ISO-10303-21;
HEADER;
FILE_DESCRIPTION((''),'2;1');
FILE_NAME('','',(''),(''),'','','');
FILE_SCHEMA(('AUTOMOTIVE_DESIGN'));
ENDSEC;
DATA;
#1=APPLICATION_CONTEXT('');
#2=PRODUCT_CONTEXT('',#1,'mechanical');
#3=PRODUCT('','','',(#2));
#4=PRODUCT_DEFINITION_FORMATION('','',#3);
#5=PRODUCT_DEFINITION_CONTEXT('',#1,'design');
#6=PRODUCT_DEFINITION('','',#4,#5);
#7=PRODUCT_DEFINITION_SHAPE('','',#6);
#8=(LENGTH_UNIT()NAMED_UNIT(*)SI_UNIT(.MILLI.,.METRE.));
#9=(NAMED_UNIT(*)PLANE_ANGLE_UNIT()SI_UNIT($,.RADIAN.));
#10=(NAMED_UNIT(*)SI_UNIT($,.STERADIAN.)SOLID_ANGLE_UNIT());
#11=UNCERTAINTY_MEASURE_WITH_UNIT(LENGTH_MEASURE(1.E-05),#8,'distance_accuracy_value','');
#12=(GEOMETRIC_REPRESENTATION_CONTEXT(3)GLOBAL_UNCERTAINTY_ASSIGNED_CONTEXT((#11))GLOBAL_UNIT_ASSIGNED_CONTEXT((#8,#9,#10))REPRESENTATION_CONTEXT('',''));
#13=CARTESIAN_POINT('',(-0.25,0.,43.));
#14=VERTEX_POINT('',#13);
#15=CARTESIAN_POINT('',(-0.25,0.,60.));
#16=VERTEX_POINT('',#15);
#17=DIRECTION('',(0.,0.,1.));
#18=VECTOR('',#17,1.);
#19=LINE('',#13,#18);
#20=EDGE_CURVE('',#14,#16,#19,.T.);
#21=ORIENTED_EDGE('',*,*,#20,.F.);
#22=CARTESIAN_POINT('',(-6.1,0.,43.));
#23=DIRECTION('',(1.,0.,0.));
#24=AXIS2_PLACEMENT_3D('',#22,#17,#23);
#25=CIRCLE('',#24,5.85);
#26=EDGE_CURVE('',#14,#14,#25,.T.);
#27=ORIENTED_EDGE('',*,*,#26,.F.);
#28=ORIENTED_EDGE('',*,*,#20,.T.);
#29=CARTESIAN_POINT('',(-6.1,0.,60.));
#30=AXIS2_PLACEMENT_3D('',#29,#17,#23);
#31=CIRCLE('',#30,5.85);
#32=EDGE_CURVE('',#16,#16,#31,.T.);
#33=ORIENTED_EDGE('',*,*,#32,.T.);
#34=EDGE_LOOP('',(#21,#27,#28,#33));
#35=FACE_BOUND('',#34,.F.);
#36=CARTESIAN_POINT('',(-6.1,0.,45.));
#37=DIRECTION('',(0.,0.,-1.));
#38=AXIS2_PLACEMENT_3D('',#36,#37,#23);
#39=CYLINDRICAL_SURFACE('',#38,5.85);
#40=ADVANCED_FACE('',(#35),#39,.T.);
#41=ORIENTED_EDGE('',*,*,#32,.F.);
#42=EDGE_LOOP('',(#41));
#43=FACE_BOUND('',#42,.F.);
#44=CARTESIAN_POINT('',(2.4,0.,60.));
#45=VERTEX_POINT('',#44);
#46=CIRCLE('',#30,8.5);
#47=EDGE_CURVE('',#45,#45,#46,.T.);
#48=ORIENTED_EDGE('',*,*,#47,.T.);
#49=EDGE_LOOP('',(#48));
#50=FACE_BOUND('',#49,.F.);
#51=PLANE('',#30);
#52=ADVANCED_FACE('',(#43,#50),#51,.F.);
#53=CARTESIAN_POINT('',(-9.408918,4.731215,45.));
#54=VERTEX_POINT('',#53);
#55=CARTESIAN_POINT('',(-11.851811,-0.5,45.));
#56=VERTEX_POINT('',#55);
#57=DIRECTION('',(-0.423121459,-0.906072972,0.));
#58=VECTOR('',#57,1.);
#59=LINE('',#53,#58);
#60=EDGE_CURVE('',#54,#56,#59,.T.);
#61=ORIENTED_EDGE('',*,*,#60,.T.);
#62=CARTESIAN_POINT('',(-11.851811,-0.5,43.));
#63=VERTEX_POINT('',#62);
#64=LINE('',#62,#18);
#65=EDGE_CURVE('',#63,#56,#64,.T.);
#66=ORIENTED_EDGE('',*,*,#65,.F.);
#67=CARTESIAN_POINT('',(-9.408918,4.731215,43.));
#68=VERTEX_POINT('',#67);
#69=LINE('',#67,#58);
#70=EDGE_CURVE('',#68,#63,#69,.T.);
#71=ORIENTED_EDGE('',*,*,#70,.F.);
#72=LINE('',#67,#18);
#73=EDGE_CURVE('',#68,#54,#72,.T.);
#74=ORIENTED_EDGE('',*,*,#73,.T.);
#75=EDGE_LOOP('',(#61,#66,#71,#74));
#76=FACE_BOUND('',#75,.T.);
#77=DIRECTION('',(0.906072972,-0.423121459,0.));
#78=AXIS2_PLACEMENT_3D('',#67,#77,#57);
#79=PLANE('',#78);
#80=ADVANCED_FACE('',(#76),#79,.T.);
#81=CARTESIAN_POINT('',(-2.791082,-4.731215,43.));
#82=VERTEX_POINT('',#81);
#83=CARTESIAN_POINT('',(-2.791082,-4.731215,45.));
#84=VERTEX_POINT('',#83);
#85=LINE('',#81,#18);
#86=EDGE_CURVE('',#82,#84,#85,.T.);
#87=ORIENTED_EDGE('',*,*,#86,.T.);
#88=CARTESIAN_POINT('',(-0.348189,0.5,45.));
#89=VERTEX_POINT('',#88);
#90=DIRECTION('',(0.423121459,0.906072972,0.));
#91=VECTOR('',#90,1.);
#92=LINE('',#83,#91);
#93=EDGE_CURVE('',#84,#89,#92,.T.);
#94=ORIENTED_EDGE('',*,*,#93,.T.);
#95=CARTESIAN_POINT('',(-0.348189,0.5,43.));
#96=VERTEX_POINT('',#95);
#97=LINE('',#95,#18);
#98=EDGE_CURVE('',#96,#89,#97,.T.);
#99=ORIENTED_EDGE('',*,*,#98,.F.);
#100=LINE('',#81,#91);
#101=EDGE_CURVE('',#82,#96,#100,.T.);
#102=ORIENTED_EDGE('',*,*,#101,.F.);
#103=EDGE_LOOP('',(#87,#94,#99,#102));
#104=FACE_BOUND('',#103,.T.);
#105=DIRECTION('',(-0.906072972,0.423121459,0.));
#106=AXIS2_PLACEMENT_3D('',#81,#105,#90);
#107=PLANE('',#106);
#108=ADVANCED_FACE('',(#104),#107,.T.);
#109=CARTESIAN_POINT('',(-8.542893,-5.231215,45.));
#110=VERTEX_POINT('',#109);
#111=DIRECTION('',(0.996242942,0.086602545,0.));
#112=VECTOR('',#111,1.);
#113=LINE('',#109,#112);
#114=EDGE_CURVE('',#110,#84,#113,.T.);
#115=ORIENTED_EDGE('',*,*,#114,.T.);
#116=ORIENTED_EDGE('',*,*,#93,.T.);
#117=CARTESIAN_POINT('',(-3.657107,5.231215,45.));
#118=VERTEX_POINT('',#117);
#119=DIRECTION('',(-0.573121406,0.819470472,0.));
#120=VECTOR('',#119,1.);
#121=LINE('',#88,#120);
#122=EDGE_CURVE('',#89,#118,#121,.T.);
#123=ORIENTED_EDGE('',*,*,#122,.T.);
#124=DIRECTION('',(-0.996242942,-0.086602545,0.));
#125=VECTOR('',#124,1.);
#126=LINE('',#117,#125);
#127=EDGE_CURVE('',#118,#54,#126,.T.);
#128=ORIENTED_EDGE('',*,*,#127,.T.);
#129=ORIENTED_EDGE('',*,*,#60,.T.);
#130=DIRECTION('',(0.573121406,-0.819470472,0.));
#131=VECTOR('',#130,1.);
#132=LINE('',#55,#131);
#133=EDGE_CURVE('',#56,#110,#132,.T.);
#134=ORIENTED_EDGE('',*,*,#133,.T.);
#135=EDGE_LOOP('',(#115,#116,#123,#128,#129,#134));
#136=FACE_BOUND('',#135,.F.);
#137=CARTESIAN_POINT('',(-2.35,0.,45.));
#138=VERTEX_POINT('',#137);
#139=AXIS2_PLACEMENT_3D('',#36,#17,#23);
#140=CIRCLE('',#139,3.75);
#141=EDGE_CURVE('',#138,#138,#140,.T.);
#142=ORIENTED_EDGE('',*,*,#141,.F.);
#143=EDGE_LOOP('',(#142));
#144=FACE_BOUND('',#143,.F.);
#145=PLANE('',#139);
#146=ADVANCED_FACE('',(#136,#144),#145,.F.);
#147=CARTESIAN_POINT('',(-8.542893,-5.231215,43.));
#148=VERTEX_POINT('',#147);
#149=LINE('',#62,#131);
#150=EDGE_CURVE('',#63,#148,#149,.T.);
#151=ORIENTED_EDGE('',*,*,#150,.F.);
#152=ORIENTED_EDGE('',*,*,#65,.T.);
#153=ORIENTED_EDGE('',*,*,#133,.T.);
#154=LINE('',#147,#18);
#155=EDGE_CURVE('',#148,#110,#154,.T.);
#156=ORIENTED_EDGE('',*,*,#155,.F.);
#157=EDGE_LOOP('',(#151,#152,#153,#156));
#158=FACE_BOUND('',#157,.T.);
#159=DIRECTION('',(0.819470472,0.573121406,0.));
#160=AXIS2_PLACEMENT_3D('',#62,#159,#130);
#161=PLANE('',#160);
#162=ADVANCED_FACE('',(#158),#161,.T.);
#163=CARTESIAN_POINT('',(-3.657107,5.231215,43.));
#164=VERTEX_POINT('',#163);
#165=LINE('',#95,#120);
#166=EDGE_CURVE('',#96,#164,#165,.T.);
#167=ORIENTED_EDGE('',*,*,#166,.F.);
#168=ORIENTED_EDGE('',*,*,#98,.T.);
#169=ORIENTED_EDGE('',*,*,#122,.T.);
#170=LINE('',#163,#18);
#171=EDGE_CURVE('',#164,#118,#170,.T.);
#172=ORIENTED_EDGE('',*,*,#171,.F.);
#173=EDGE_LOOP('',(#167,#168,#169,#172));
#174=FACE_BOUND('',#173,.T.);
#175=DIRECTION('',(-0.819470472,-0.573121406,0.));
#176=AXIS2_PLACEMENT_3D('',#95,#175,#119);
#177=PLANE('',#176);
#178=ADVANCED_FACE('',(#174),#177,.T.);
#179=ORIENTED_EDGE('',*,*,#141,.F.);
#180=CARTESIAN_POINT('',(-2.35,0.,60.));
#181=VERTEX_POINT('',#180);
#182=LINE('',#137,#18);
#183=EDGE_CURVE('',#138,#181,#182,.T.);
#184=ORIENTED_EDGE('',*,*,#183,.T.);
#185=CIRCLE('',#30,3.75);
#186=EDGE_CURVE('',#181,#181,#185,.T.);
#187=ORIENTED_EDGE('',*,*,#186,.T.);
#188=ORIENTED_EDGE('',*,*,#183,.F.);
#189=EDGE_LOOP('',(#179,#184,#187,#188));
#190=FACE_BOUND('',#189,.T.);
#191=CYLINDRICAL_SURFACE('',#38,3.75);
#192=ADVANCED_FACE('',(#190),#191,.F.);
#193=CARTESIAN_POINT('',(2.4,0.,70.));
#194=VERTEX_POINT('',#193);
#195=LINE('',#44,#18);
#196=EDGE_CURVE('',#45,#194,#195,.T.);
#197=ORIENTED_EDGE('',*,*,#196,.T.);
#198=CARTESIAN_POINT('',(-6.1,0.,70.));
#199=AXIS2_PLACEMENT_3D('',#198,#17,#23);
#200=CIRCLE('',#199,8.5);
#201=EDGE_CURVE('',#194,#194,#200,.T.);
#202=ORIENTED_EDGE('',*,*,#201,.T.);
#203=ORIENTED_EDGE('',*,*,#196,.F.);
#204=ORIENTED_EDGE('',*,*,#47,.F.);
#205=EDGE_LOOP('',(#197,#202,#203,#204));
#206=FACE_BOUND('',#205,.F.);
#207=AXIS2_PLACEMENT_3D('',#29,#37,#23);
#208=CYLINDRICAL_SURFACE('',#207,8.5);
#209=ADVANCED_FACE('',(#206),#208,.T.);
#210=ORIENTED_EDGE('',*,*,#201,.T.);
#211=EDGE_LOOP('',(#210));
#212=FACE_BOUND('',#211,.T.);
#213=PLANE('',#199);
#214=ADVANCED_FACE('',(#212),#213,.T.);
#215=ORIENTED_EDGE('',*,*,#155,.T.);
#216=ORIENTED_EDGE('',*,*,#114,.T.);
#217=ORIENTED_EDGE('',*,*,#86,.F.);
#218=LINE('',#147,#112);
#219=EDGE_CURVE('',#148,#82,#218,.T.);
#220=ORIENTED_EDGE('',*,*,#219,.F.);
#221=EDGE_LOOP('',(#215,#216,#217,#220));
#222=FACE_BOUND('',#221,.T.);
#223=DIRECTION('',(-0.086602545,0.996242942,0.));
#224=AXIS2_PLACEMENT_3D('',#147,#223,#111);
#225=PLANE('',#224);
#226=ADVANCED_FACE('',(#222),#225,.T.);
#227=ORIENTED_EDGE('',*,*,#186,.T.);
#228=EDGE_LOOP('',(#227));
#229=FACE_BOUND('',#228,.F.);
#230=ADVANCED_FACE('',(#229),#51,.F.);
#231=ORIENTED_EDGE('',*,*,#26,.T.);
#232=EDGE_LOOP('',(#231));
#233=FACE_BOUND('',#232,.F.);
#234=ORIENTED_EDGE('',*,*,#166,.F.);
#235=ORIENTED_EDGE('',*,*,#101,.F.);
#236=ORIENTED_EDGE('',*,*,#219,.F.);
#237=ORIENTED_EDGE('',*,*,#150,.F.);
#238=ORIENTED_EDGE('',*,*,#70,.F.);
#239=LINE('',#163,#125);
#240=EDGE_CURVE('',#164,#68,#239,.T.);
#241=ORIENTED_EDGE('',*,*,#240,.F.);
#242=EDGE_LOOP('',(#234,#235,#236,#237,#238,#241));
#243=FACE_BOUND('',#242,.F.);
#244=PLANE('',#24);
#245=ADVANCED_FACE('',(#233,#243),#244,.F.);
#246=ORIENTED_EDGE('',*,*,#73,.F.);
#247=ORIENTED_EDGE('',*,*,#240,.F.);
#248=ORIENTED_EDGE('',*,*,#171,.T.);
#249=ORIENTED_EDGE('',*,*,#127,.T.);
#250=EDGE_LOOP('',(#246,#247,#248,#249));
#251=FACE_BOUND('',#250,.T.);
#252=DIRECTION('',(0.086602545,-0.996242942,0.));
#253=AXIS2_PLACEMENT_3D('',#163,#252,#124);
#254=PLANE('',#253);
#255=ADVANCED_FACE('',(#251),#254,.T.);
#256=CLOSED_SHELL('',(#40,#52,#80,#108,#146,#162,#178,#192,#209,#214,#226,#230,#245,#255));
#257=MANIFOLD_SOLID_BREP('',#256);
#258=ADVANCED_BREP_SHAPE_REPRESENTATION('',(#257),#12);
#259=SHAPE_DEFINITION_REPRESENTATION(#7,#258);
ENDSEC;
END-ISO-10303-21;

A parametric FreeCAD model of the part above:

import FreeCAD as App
import Part
import Sketcher

V = App.Vector
Q = App.Units.Quantity

doc = App.newDocument("Part")
body = doc.addObject("PartDesign::Body", "Body")

# Sketch on XY plane
sketch1 = body.newObject("Sketcher::SketchObject", "Sketch")
sketch1.AttachmentSupport = (doc.getObject("XY_Plane"), [""])
sketch1.MapMode = "FlatFace"
sketch1.addGeometry([
    Part.Circle(V(-1.1, 0.5, 0), V(0, 0, 1), 5.85),  # 0
    Part.LineSegment(V(-6.851811, 0, 0), V(-4.408918, 5.231215, 0)),  # 1
    Part.LineSegment(V(-4.408918, 5.231215, 0), V(1.342893, 5.731215, 0)),  # 2
    Part.LineSegment(V(1.342893, 5.731215, 0), V(4.651811, 1, 0)),  # 3
    Part.LineSegment(V(4.651811, 1, 0), V(2.208918, -4.231215, 0)),  # 4
    Part.LineSegment(V(2.208918, -4.231215, 0), V(-3.542893, -4.731215, 0)),  # 5
    Part.LineSegment(V(-3.542893, -4.731215, 0), V(-6.851811, 0, 0)),  # 6
], False)
sketch1.addConstraint([
    Sketcher.Constraint("Coincident", 1, 2, 2, 1),
    Sketcher.Constraint("Coincident", 2, 2, 3, 1),
    Sketcher.Constraint("Coincident", 3, 2, 4, 1),
    Sketcher.Constraint("Coincident", 4, 2, 5, 1),
    Sketcher.Constraint("Coincident", 5, 2, 6, 1),
    Sketcher.Constraint("Coincident", 6, 2, 1, 1),
    Sketcher.Constraint("PointOnObject", 6, 2, -1),
    Sketcher.Constraint("Parallel", 1, 4),
    Sketcher.Constraint("Parallel", 2, 5),
    Sketcher.Constraint("Parallel", 3, 6),
    Sketcher.Constraint("Equal", 1, 2),
    Sketcher.Constraint("Equal", 2, 3),
    Sketcher.Constraint("Equal", 3, 4),
    Sketcher.Constraint("Diameter", 0, Q("11.7 mm")),
    Sketcher.Constraint("DistanceY", -1, 1, 3, 2, Q("1 mm")),
    Sketcher.Constraint("DistanceX", 0, 3, -1, 1, Q("1.1 mm")),
    Sketcher.Constraint("DistanceY", -1, 1, 0, 3, Q("0.5 mm")),
    Sketcher.Constraint("DistanceY", 1, 2, 2, 2, Q("0.5 mm")),
    Sketcher.Constraint("DistanceX", -1, 1, 3, 2, Q("4.651811 mm")),
    Sketcher.Constraint("DistanceX", -1, 1, 4, 2, Q("2.208918 mm")),
    Sketcher.Constraint("DistanceX", 6, 2, -1, 1, Q("6.851811 mm")),
])
pad1 = body.newObject("PartDesign::Pad", "Pad")
pad1.Profile = sketch1
pad1.Length = 2

# Sketch on XY plane
sketch2 = body.newObject("Sketcher::SketchObject", "Sketch001")
sketch2.AttachmentSupport = (doc.getObject("XY_Plane"), [""])
sketch2.MapMode = "FlatFace"
sketch2.AttachmentOffset = App.Placement(V(0, 0, 2), App.Rotation())
sketch2.addGeometry([
    Part.Circle(V(-1.1, 0.5, 0), V(0, 0, 1), 5.85),
    Part.Circle(V(-1.1, 0.5, 0), V(0, 0, 1), 3.75),
], False)
sketch2.addConstraint([
    Sketcher.Constraint("Coincident", 1, 3, 0, 3),
    Sketcher.Constraint("Diameter", 0, Q("11.7 mm")),
    Sketcher.Constraint("Diameter", 1, Q("7.5 mm")),
    Sketcher.Constraint("DistanceX", 0, 3, -1, 1, Q("1.1 mm")),
    Sketcher.Constraint("DistanceY", -1, 1, 0, 3, Q("0.5 mm")),
])
pad2 = body.newObject("PartDesign::Pad", "Pad001")
pad2.Profile = sketch2
pad2.Length = 15

# Sketch on XY plane
sketch3 = body.newObject("Sketcher::SketchObject", "Sketch002")
sketch3.AttachmentSupport = (doc.getObject("XY_Plane"), [""])
sketch3.MapMode = "FlatFace"
sketch3.AttachmentOffset = App.Placement(V(0, 0, 17), App.Rotation())
sketch3.addGeometry(Part.Circle(V(-1.1, 0.5, 0), V(0, 0, 1), 8.5), False)
sketch3.addConstraint([
    Sketcher.Constraint("Diameter", 0, Q("17 mm")),
    Sketcher.Constraint("DistanceX", 0, 3, -1, 1, Q("1.1 mm")),
    Sketcher.Constraint("DistanceY", -1, 1, 0, 3, Q("0.5 mm")),
])
pad3 = body.newObject("PartDesign::Pad", "Pad002")
pad3.Profile = sketch3
pad3.Length = 10
body2 = doc.addObject("PartDesign::Body", "Body001")
doc.recompute()

body.Placement = App.Placement(V(-5, -0.5, 43), App.Rotation(V(0, 0, 1), 0))
boolean = body2.newObject("PartDesign::Boolean", "Boolean")
boolean.Type = "Fuse"
boolean.addObjects([body])

doc.recompute()
